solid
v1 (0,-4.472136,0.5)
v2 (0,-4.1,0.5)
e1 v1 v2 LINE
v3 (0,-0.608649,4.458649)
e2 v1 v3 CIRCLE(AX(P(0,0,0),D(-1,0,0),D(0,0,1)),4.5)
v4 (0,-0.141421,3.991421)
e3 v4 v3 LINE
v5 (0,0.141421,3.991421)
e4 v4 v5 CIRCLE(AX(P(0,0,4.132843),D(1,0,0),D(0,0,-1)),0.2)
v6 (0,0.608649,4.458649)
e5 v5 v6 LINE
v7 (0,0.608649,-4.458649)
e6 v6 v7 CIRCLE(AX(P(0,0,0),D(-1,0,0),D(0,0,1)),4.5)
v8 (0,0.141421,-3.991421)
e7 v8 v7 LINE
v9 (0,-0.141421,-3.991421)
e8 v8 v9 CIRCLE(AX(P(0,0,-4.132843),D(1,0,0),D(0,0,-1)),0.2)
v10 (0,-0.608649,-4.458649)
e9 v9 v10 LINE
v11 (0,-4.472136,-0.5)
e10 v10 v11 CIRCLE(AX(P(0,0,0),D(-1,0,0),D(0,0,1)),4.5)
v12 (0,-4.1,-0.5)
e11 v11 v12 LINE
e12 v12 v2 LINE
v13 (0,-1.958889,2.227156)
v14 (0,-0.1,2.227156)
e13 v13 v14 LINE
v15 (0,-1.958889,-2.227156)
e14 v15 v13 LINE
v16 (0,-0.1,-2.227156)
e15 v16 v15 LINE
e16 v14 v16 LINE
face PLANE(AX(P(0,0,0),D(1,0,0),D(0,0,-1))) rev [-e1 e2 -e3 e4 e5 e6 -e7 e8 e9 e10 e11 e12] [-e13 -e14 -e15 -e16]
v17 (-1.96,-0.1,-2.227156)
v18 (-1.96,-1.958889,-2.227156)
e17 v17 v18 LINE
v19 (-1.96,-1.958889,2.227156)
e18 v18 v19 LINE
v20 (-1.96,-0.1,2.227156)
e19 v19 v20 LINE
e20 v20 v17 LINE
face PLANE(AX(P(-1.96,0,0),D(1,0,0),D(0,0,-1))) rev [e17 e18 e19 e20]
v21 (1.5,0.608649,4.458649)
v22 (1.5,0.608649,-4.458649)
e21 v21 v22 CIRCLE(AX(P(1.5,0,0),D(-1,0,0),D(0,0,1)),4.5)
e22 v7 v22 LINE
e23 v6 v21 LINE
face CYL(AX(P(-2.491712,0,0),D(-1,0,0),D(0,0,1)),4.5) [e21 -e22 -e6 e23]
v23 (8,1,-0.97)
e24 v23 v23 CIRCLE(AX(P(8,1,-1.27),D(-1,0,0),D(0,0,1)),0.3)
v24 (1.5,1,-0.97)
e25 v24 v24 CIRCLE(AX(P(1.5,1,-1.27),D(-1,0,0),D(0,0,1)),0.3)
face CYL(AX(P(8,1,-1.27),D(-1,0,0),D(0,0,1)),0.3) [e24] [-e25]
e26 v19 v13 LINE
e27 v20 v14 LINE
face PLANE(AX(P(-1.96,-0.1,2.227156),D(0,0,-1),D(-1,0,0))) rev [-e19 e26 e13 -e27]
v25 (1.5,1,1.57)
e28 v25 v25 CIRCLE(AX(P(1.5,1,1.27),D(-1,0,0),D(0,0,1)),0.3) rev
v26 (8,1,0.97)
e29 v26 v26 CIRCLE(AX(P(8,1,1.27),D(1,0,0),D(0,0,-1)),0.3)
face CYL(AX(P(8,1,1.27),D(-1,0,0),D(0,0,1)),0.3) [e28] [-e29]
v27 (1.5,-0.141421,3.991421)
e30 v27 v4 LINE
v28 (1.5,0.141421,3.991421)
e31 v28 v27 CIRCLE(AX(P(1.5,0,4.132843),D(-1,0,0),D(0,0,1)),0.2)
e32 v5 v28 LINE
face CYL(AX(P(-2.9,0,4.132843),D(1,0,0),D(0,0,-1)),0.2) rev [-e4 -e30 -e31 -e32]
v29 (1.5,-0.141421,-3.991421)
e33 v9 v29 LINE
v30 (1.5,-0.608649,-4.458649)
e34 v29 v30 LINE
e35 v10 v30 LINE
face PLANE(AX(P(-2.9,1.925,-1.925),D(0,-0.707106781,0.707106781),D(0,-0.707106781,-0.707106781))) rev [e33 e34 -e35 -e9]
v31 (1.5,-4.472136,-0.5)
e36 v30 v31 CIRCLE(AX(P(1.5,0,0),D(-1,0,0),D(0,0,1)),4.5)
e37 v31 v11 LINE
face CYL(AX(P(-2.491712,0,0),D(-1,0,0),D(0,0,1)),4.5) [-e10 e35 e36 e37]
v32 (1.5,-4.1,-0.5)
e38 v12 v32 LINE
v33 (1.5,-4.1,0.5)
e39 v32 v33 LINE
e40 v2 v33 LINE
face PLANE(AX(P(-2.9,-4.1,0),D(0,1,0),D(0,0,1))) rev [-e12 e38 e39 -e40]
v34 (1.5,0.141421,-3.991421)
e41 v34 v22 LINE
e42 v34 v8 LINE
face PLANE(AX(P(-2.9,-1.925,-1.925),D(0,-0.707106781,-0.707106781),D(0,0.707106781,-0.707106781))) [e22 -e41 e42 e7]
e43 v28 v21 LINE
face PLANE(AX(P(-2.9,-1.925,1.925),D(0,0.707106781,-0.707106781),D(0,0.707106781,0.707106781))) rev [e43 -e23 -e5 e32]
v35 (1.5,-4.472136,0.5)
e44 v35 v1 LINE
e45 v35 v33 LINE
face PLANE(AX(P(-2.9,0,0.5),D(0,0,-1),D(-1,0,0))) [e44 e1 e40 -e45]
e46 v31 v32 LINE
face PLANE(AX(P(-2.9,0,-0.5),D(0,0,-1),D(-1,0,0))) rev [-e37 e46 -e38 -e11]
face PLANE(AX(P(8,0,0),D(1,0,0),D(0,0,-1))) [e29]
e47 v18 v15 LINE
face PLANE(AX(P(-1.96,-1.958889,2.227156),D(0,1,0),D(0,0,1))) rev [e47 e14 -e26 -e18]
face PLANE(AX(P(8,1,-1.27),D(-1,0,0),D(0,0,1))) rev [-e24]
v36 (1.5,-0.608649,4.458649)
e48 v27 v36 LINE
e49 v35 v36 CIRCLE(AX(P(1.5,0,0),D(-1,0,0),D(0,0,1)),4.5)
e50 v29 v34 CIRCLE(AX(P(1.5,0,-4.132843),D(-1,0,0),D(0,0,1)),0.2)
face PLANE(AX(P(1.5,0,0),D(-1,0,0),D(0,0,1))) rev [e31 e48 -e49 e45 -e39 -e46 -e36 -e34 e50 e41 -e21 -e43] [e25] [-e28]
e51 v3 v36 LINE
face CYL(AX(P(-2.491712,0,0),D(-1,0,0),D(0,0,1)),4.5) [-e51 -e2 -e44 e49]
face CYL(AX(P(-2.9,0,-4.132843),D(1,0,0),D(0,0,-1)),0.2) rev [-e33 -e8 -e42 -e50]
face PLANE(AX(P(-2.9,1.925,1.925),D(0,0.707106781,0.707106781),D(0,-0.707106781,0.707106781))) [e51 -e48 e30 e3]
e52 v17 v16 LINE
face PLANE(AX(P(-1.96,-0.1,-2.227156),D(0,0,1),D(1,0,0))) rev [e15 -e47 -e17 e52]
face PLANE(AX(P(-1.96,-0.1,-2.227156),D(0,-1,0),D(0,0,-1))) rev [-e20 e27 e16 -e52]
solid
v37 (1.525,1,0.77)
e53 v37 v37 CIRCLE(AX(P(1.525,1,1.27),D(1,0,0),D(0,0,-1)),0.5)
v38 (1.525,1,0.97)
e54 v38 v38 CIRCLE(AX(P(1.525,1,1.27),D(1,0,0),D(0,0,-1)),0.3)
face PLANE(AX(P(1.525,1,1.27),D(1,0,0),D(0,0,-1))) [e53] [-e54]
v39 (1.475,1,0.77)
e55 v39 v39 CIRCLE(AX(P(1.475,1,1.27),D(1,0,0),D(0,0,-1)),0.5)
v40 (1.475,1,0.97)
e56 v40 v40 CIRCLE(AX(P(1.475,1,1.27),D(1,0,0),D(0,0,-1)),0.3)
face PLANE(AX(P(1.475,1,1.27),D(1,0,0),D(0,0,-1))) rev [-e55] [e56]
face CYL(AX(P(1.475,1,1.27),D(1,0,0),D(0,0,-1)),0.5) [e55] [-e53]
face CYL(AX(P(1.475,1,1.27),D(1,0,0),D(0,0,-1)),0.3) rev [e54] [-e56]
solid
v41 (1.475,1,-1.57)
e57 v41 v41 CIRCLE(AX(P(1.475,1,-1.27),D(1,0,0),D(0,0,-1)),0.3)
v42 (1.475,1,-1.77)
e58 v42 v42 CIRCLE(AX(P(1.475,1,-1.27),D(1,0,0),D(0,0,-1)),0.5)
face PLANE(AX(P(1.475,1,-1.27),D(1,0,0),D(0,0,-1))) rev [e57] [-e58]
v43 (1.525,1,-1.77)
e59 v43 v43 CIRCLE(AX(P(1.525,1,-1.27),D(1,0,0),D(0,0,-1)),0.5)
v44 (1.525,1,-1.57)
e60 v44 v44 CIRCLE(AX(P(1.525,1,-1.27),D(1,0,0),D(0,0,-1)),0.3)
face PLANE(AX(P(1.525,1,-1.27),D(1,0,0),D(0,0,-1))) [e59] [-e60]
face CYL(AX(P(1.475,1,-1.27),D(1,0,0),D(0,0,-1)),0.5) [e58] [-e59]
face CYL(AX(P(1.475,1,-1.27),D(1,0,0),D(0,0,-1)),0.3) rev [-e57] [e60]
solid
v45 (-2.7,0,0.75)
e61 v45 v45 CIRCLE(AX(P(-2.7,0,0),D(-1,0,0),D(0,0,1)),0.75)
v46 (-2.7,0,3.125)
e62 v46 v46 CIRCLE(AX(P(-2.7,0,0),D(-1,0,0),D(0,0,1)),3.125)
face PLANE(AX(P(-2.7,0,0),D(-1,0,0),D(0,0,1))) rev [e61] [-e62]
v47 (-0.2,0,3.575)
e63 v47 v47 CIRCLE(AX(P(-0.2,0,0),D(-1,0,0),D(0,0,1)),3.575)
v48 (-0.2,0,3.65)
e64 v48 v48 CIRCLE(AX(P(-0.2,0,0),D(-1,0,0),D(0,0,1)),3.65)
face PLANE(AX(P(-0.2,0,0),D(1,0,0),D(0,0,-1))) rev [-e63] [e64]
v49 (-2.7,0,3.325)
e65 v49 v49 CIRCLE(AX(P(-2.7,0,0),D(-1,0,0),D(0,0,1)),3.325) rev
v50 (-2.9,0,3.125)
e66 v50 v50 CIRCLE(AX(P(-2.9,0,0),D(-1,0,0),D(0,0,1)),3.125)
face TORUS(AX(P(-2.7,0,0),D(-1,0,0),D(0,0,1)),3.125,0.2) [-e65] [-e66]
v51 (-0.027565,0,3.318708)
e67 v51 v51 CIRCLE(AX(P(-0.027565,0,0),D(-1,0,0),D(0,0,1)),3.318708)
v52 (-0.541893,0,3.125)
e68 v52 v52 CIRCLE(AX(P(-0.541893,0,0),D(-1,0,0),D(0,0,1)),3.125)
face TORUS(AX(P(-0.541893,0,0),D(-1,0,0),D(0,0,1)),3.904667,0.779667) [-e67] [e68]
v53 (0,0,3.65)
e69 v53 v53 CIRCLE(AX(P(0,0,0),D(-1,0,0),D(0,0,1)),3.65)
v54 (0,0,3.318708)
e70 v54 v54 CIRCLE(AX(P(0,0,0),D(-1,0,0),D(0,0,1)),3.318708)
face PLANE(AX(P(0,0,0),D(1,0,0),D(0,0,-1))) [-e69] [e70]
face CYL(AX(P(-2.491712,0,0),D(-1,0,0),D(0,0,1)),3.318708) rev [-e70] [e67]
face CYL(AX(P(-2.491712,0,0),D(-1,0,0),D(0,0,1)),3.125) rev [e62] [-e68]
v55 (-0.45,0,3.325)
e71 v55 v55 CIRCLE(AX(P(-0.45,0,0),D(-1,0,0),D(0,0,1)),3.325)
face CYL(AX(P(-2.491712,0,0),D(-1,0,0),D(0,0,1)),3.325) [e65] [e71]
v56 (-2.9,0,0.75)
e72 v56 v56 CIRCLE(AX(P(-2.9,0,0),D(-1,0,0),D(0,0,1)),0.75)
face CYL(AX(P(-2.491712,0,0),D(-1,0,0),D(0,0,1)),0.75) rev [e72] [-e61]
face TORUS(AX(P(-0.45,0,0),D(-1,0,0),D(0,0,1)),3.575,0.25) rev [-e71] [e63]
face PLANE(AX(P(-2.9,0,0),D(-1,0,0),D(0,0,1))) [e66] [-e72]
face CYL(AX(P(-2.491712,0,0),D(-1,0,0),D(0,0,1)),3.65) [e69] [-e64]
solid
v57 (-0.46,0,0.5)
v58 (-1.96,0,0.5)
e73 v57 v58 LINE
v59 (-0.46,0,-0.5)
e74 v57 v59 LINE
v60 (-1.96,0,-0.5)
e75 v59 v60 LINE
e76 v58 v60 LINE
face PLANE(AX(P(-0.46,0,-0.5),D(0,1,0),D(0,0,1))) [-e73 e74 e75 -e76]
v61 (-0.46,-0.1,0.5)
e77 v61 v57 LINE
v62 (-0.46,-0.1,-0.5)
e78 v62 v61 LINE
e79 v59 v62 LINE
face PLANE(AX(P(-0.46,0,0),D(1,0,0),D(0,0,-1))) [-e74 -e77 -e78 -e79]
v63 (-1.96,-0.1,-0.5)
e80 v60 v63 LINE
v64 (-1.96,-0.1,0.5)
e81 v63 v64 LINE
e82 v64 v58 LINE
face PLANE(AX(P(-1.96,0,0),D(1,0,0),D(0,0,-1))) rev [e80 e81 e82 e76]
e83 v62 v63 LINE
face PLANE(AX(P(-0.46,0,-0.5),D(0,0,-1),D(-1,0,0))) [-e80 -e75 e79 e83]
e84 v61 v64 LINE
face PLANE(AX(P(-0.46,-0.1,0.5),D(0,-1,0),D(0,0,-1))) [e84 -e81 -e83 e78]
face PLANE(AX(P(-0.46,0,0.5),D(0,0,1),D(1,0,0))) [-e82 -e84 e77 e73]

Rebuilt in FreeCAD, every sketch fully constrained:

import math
import FreeCAD as App
import Part
import Sketcher
from FreeCAD import Vector


def edges_at(feature, points):
    """Names of the edges that pass closest to the given points."""
    edges = feature.Shape.Edges
    near = lambda p: min(range(len(edges)), key=lambda i: edges[i].distToShape(Part.Vertex(*p))[0])
    return sorted({f"Edge{near(p) + 1}" for p in points})


def add_polygon(sketch, points):
    """Adds a closed chain of lines whose ends are joined by coincident constraints."""
    first, n = sketch.GeometryCount, len(points)
    for a, b in zip(points, points[1:] + points[:1]):
        sketch.addGeometry(Part.LineSegment(App.Vector(*a, 0), App.Vector(*b, 0)), False)
    for i in range(n):
        sketch.addConstraint(Sketcher.Constraint("Coincident", first + i, 2, first + (i + 1) % n, 1))

doc = App.newDocument("Part")
params = doc.addObject("Spreadsheet::Sheet", "Params")
for row, (alias, value) in enumerate([
    ("sketch1_width", "1.5 mm"),
    ("sketch1_height", "4.5 mm"),
    ("revolution_angle", "360 deg"),
    ("sketch2_diameter", "0.6 mm"),
    ("pad1_length", "6.5 mm"),
    ("pad2_length", "1.96 mm"),
    ("sketch4_radius", "4.5 mm"),
    ("sketch4_height", "1 mm"),
    ("fillet_radius", "0.2 mm"),
    ("sketch5_radius", "0.25 mm"),
    ("sketch5_width", "0.2 mm"),
    ("sketch5_width2", "2.45 mm"),
    ("revolution2_angle", "360 deg"),
    ("fillet2_radius", "0.2 mm"),
    ("sketch6_diameter", "1 mm"),
    ("sketch6_diameter2", "0.6 mm"),
    ("pad3_length", "0.05 mm"),
    ("sketch7_diameter", "1 mm"),
    ("sketch7_diameter2", "0.6 mm"),
    ("pad4_length", "0.05 mm"),
    ("sketch8_height", "1 mm"),
    ("sketch8_width", "0.1 mm"),
    ("pad5_length", "1.5 mm"),
], start=1):
    params.set(f"A{row}", alias)
    params.set(f"B{row}", "=" + value)
    params.setAlias(f"B{row}", alias)

body = doc.addObject("PartDesign::Body", "Body")

sketch1 = doc.addObject("Sketcher::SketchObject", "Sketch")
body.addObject(sketch1)
sketch1.AttachmentSupport = (doc.XY_Plane, [""])
sketch1.MapMode = "FlatFace"
add_polygon(sketch1, [(1.5, 4.5), (0, 4.5), (0, 0), (1.5, 0)])
sketch1.addConstraint([
    Sketcher.Constraint("Horizontal", 0),
    Sketcher.Constraint("Vertical", 1),
    Sketcher.Constraint("Horizontal", 2),
    Sketcher.Constraint("Vertical", 3),
    Sketcher.Constraint("Coincident", 1, 2, -1, 1),
    Sketcher.Constraint("DistanceX", 0, 2, 0, 1, 1.5),
    Sketcher.Constraint("DistanceY", 1, 2, 1, 1, 4.5),
])
sketch1.setExpression("Constraints[9]", "Params.sketch1_width")
sketch1.setExpression("Constraints[10]", "Params.sketch1_height")
revolution = doc.addObject("PartDesign::Revolution", "Revolution")
body.addObject(revolution)
revolution.Profile = sketch1
revolution.ReferenceAxis = (sketch1, ["H_Axis"])
revolution.setExpression("Angle", "Params.revolution_angle")

sketch2 = doc.addObject("Sketcher::SketchObject", "Sketch001")
body.addObject(sketch2)
sketch2.AttachmentSupport = (doc.YZ_Plane, [""])
sketch2.MapMode = "FlatFace"
sketch2.AttachmentOffset = App.Placement(Vector(0, 0, 1.5), App.Rotation())
sketch2.addGeometry([
    Part.Circle(Vector(1, 1.27, 0), Vector(0, 0, 1), 0.3),
    Part.Circle(Vector(1, -1.27, 0), Vector(0, 0, 1), 0.3),
], False)
sketch2.addConstraint([
    Sketcher.Constraint("Equal", 0, 1),
    Sketcher.Constraint("Symmetric", 0, 3, 1, 3, -1),
    Sketcher.Constraint("Diameter", 0, 0.6),
    Sketcher.Constraint("DistanceX", -1, 1, 0, 3, 1.0),
    Sketcher.Constraint("DistanceY", -1, 1, 0, 3, 1.27),
])
sketch2.setExpression("Constraints[2]", "Params.sketch2_diameter")
pad1 = doc.addObject("PartDesign::Pad", "Pad")
body.addObject(pad1)
pad1.Profile = sketch2
pad1.setExpression("Length", "Params.pad1_length")

sketch3 = doc.addObject("Sketcher::SketchObject", "Sketch002")
body.addObject(sketch3)
sketch3.AttachmentSupport = (doc.YZ_Plane, [""])
sketch3.MapMode = "FlatFace"
add_polygon(sketch3, [(-0.1, -2.2), (-2, -2.2), (-2, 2.2), (-0.1, 2.2)])
sketch3.addConstraint([
    Sketcher.Constraint("Horizontal", 0),
    Sketcher.Constraint("Vertical", 1),
    Sketcher.Constraint("Horizontal", 2),
    Sketcher.Constraint("Vertical", 3),
    Sketcher.Constraint("DistanceX", 2, 2, -1, 1, 0.1),
    Sketcher.Constraint("DistanceX", 0, 2, 0, 1, 1.858889),
    Sketcher.Constraint("DistanceY", 1, 1, 1, 2, 4.454313),
    Sketcher.Constraint("DistanceY", 0, 2, -1, 1, 2.227156),
])
pad2 = doc.addObject("PartDesign::Pad", "Pad001")
body.addObject(pad2)
pad2.Profile = sketch3
pad2.setExpression("Length", "Params.pad2_length")
pad2.Reversed = True

sketch4 = doc.addObject("Sketcher::SketchObject", "Sketch003")
body.addObject(sketch4)
sketch4.AttachmentSupport = (doc.YZ_Plane, [""])
sketch4.MapMode = "FlatFace"
sketch4.AttachmentOffset = App.Placement(Vector(0, 0, 1.5), App.Rotation())
sketch4.addGeometry([
    Part.LineSegment(Vector(0, 3.85, 0), Vector(0.61, 4.46, 0)),
    Part.ArcOfCircle(Part.Circle(Vector(0, 0, 0), Vector(0, 0, 1), 4.5), math.radians(82.23), math.radians(97.77)),
    Part.LineSegment(Vector(-0.61, 4.46, 0), Vector(0, 3.85, 0)),
    Part.ArcOfCircle(Part.Circle(Vector(0, 0, 0), Vector(0, 0, 1), 4.5), math.radians(173.62), math.radians(186.38)),
    Part.LineSegment(Vector(-4.47, -0.5, 0), Vector(-4.1, -0.5, 0)),
    Part.LineSegment(Vector(-4.1, -0.5, 0), Vector(-4.1, 0.5, 0)),
    Part.LineSegment(Vector(-4.1, 0.5, 0), Vector(-4.47, 0.5, 0)),
    Part.LineSegment(Vector(0.61, -4.46, 0), Vector(0, -3.85, 0)),
    Part.LineSegment(Vector(0, -3.85, 0), Vector(-0.61, -4.46, 0)),
    Part.ArcOfCircle(Part.Circle(Vector(0, 0, 0), Vector(0, 0, 1), 4.5), math.radians(-97.77), math.radians(-90)),
    Part.ArcOfCircle(Part.Circle(Vector(0, 0, 0), Vector(0, 0, 1), 4.5), math.radians(-90), math.radians(-82.23)),
], False)
sketch4.addConstraint([
    Sketcher.Constraint("Coincident", 0, 2, 1, 1),
    Sketcher.Constraint("Coincident", 1, 2, 2, 1),
    Sketcher.Constraint("Coincident", 2, 2, 0, 1),
    Sketcher.Constraint("Coincident", 3, 2, 4, 1),
    Sketcher.Constraint("Coincident", 4, 2, 5, 1),
    Sketcher.Constraint("Coincident", 5, 2, 6, 1),
    Sketcher.Constraint("Coincident", 6, 2, 3, 1),
    Sketcher.Constraint("Coincident", 7, 2, 8, 1),
    Sketcher.Constraint("Coincident", 8, 2, 9, 1),
    Sketcher.Constraint("Tangent", 9, 2, 10, 1),
    Sketcher.Constraint("Coincident", 10, 2, 7, 1),
    Sketcher.Constraint("Horizontal", 4),
    Sketcher.Constraint("Vertical", 5),
    Sketcher.Constraint("Horizontal", 6),
    Sketcher.Constraint("Coincident", 1, 3, -1, 1),
    Sketcher.Constraint("Coincident", 3, 3, -1, 1),
    Sketcher.Constraint("Coincident", 9, 3, -1, 1),
    Sketcher.Constraint("Equal", 1, 3),
    Sketcher.Constraint("Equal", 3, 9),
    Sketcher.Constraint("Equal", 9, 10),
    Sketcher.Constraint("Symmetric", 2, 2, 7, 2, -1, 1),
    Sketcher.Constraint("PointOnObject", 2, 2, -2),
    Sketcher.Constraint("PointOnObject", 9, 2, -2),
    Sketcher.Constraint("Perpendicular", 0, 2),
    Sketcher.Constraint("Parallel", 2, 7),
    Sketcher.Constraint("Perpendicular", 7, 8),
    Sketcher.Constraint("Horizontal", 0, 2, 1, 2),
    Sketcher.Constraint("Vertical", 3, 2, 6, 2),
    Sketcher.Constraint("Radius", 1, 4.5),
    Sketcher.Constraint("DistanceY", 5, 1, 5, 2, 1.0),
    Sketcher.Constraint("DistanceX", 4, 2, -1, 1, 4.1),
    Sketcher.Constraint("DistanceY", -1, 1, 2, 2, 3.85),
])
sketch4.setExpression("Constraints[28]", "Params.sketch4_radius")
sketch4.setExpression("Constraints[29]", "Params.sketch4_height")
pocket1 = doc.addObject("PartDesign::Pocket", "Pocket")
body.addObject(pocket1)
pocket1.Profile = sketch4
pocket1.Type = "ThroughAll"
doc.recompute()

fillet = doc.addObject("PartDesign::Fillet", "Fillet")
body.addObject(fillet)
fillet.Base = (pocket1, edges_at(pocket1, [(0.75, 0, 3.85), (0.75, 0, -3.85)]))
fillet.setExpression("Radius", "Params.fillet_radius")
body2 = doc.addObject("PartDesign::Body", "Body001")

sketch5 = doc.addObject("Sketcher::SketchObject", "Sketch004")
body2.addObject(sketch5)
sketch5.AttachmentSupport = (doc.getObject("XY_Plane001"), [""])
sketch5.MapMode = "FlatFace"
sketch5.addGeometry([
    Part.LineSegment(Vector(-2.9, 0.75, 0), Vector(-2.7, 0.75, 0)),
    Part.LineSegment(Vector(-2.7, 0.75, 0), Vector(-2.7, 3.125, 0)),
    Part.LineSegment(Vector(-2.7, 3.125, 0), Vector(-0.542, 3.125, 0)),
    Part.ArcOfCircle(Part.Circle(Vector(-0.542, 3.905, 0), Vector(0, 0, 1), 0.78), math.radians(-90), math.radians(-49)),
    Part.LineSegment(Vector(-0.028, 3.319, 0), Vector(0, 3.319, 0)),
    Part.LineSegment(Vector(0, 3.319, 0), Vector(0, 3.65, 0)),
    Part.LineSegment(Vector(0, 3.65, 0), Vector(-0.2, 3.65, 0)),
    Part.LineSegment(Vector(-0.2, 3.65, 0), Vector(-0.2, 3.575, 0)),
    Part.ArcOfCircle(Part.Circle(Vector(-0.45, 3.575, 0), Vector(0, 0, 1), 0.25), math.radians(-90), math.radians(0)),
    Part.LineSegment(Vector(-0.45, 3.325, 0), Vector(-2.9, 3.325, 0)),
    Part.LineSegment(Vector(-2.9, 3.325, 0), Vector(-2.9, 0.75, 0)),
], False)
sketch5.addConstraint([
    Sketcher.Constraint("Coincident", 0, 2, 1, 1),
    Sketcher.Constraint("Coincident", 1, 2, 2, 1),
    Sketcher.Constraint("Tangent", 2, 2, 3, 1),
    Sketcher.Constraint("Coincident", 3, 2, 4, 1),
    Sketcher.Constraint("Coincident", 4, 2, 5, 1),
    Sketcher.Constraint("Coincident", 5, 2, 6, 1),
    Sketcher.Constraint("Coincident", 6, 2, 7, 1),
    Sketcher.Constraint("Tangent", 7, 2, 8, 2),
    Sketcher.Constraint("Tangent", 8, 1, 9, 1),
    Sketcher.Constraint("Coincident", 9, 2, 10, 1),
    Sketcher.Constraint("Coincident", 10, 2, 0, 1),
    Sketcher.Constraint("Horizontal", 0),
    Sketcher.Constraint("Vertical", 1),
    Sketcher.Constraint("Horizontal", 2),
    Sketcher.Constraint("Horizontal", 4),
    Sketcher.Constraint("Vertical", 5),
    Sketcher.Constraint("Horizontal", 6),
    Sketcher.Constraint("Vertical", 7),
    Sketcher.Constraint("Horizontal", 9),
    Sketcher.Constraint("Vertical", 10),
    Sketcher.Constraint("PointOnObject", 4, 2, -2),
    Sketcher.Constraint("Equal", 0, 6),
    Sketcher.Constraint("Radius", 8, 0.25),
    Sketcher.Constraint("DistanceX", 0, 1, 0, 2, 0.2),
    Sketcher.Constraint("DistanceX", 9, 2, 9, 1, 2.45),
    Sketcher.Constraint("DistanceY", 2, 2, 8, 1, 0.2),
    Sketcher.Constraint("DistanceY", 1, 1, 1, 2, 2.375),
    Sketcher.Constraint("DistanceY", 7, 2, 7, 1, 0.075),
    Sketcher.Constraint("DistanceY", -1, 1, 0, 2, 0.75),
    Sketcher.Constraint("Radius", 3, 0.779667),
    Sketcher.Constraint("DistanceY", 5, 1, 5, 2, 0.331292),
    Sketcher.Constraint("DistanceX", 2, 1, 2, 2, 2.158107),
])
sketch5.setExpression("Constraints[22]", "Params.sketch5_radius")
sketch5.setExpression("Constraints[23]", "Params.sketch5_width")
sketch5.setExpression("Constraints[24]", "Params.sketch5_width2")
revolution2 = doc.addObject("PartDesign::Revolution", "Revolution001")
body2.addObject(revolution2)
revolution2.Profile = sketch5
revolution2.ReferenceAxis = (sketch5, ["H_Axis"])
revolution2.setExpression("Angle", "Params.revolution2_angle")
doc.recompute()

fillet2 = doc.addObject("PartDesign::Fillet", "Fillet001")
body2.addObject(fillet2)
fillet2.Base = (revolution2, edges_at(revolution2, [(-2.9, 0, -3.325)]))
fillet2.setExpression("Radius", "Params.fillet2_radius")
body3 = doc.addObject("PartDesign::Body", "Body002")

sketch6 = doc.addObject("Sketcher::SketchObject", "Sketch005")
body3.addObject(sketch6)
sketch6.AttachmentSupport = (doc.getObject("YZ_Plane002"), [""])
sketch6.MapMode = "FlatFace"
sketch6.AttachmentOffset = App.Placement(Vector(0, 0, 1.5), App.Rotation())
sketch6.addGeometry([
    Part.Circle(Vector(1, 1.27, 0), Vector(0, 0, 1), 0.5),
    Part.Circle(Vector(1, 1.27, 0), Vector(0, 0, 1), 0.3),
], False)
sketch6.addConstraint([
    Sketcher.Constraint("Coincident", 1, 3, 0, 3),
    Sketcher.Constraint("Diameter", 0, 1.0),
    Sketcher.Constraint("Diameter", 1, 0.6),
    Sketcher.Constraint("DistanceX", -1, 1, 0, 3, 1.0),
    Sketcher.Constraint("DistanceY", -1, 1, 0, 3, 1.27),
])
sketch6.setExpression("Constraints[1]", "Params.sketch6_diameter")
sketch6.setExpression("Constraints[2]", "Params.sketch6_diameter2")
pad3 = doc.addObject("PartDesign::Pad", "Pad002")
body3.addObject(pad3)
pad3.Profile = sketch6
pad3.setExpression("Length", "Params.pad3_length")
pad3.Midplane = True
body4 = doc.addObject("PartDesign::Body", "Body003")

sketch7 = doc.addObject("Sketcher::SketchObject", "Sketch006")
body4.addObject(sketch7)
sketch7.AttachmentSupport = (doc.getObject("YZ_Plane003"), [""])
sketch7.MapMode = "FlatFace"
sketch7.AttachmentOffset = App.Placement(Vector(0, 0, 1.5), App.Rotation())
sketch7.addGeometry([
    Part.Circle(Vector(1, -1.27, 0), Vector(0, 0, 1), 0.5),
    Part.Circle(Vector(1, -1.27, 0), Vector(0, 0, 1), 0.3),
], False)
sketch7.addConstraint([
    Sketcher.Constraint("Coincident", 1, 3, 0, 3),
    Sketcher.Constraint("Diameter", 0, 1.0),
    Sketcher.Constraint("Diameter", 1, 0.6),
    Sketcher.Constraint("DistanceX", -1, 1, 0, 3, 1.0),
    Sketcher.Constraint("DistanceY", 0, 3, -1, 1, 1.27),
])
sketch7.setExpression("Constraints[1]", "Params.sketch7_diameter")
sketch7.setExpression("Constraints[2]", "Params.sketch7_diameter2")
pad4 = doc.addObject("PartDesign::Pad", "Pad003")
body4.addObject(pad4)
pad4.Profile = sketch7
pad4.setExpression("Length", "Params.pad4_length")
pad4.Midplane = True
body5 = doc.addObject("PartDesign::Body", "Body004")

sketch8 = doc.addObject("Sketcher::SketchObject", "Sketch007")
body5.addObject(sketch8)
sketch8.AttachmentSupport = (doc.getObject("YZ_Plane004"), [""])
sketch8.MapMode = "FlatFace"
sketch8.AttachmentOffset = App.Placement(Vector(0, 0, -1.96), App.Rotation())
add_polygon(sketch8, [(0, -0.5), (-0.1, -0.5), (-0.1, 0.5), (0, 0.5)])
sketch8.addConstraint([
    Sketcher.Constraint("Horizontal", 0),
    Sketcher.Constraint("Vertical", 1),
    Sketcher.Constraint("Horizontal", 2),
    Sketcher.Constraint("Vertical", 3),
    Sketcher.Constraint("Symmetric", 2, 2, 3, 2, -1, 1),
    Sketcher.Constraint("DistanceY", 1, 1, 1, 2, 1.0),
    Sketcher.Constraint("DistanceX", 0, 2, 0, 1, 0.1),
])
sketch8.setExpression("Constraints[9]", "Params.sketch8_height")
sketch8.setExpression("Constraints[10]", "Params.sketch8_width")
pad5 = doc.addObject("PartDesign::Pad", "Pad004")
body5.addObject(pad5)
pad5.Profile = sketch8
pad5.setExpression("Length", "Params.pad5_length")

doc.recompute()
